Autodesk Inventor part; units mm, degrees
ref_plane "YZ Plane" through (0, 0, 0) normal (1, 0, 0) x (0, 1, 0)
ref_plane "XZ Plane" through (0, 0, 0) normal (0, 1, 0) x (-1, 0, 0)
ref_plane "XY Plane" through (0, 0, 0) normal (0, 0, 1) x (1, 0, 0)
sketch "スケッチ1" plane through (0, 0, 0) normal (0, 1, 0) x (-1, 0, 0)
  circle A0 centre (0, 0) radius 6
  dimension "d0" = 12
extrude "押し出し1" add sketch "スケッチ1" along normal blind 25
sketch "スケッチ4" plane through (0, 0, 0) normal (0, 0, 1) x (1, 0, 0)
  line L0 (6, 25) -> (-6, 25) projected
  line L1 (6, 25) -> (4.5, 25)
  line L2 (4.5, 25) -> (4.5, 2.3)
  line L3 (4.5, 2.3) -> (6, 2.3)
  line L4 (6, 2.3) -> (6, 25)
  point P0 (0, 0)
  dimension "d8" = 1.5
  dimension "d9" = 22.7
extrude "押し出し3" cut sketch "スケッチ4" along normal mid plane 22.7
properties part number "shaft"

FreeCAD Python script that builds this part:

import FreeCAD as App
import Part
import Sketcher

doc = App.newDocument("Part")
params = doc.addObject("Spreadsheet::Sheet", "Params")
for row, (alias, value) in enumerate([
    ("sketch1_diameter", "12 mm"),
    ("pad1_length", "25 mm"),
    ("sketch2_width", "1.5 mm"),
    ("sketch2_height", "22.7 mm"),
    ("pocket1_length", "22.7 mm"),
], start=1):
    params.set(f"A{row}", alias)
    params.set(f"B{row}", "=" + value)
    params.setAlias(f"B{row}", alias)

body = doc.addObject("PartDesign::Body", "Body")

sketch1 = doc.addObject("Sketcher::SketchObject", "Sketch")
body.addObject(sketch1)
sketch1.AttachmentSupport = (doc.XZ_Plane, [""])
sketch1.MapMode = "FlatFace"
sketch1.addGeometry(Part.Circle(App.Vector(0, 0, 0), App.Vector(0, 0, 1), 6), False)
sketch1.addConstraint(Sketcher.Constraint("Coincident", 0, 3, -1, 1))
sketch1.addConstraint(Sketcher.Constraint("Diameter", 0, 12.0))
sketch1.setExpression("Constraints[1]", "Params.sketch1_diameter")
pad1 = doc.addObject("PartDesign::Pad", "Pad")
body.addObject(pad1)
pad1.Profile = sketch1
pad1.setExpression("Length", "Params.pad1_length")
pad1.Reversed = True

sketch2 = doc.addObject("Sketcher::SketchObject", "Sketch001")
body.addObject(sketch2)
sketch2.AttachmentSupport = (doc.XY_Plane, [""])
sketch2.MapMode = "FlatFace"
sketch2.addGeometry(Part.LineSegment(App.Vector(6, 2.3, 0), App.Vector(6, 25, 0)), False)
sketch2.addGeometry(Part.LineSegment(App.Vector(6, 25, 0), App.Vector(4.5, 25, 0)), False)
sketch2.addGeometry(Part.LineSegment(App.Vector(4.5, 25, 0), App.Vector(4.5, 2.3, 0)), False)
sketch2.addGeometry(Part.LineSegment(App.Vector(4.5, 2.3, 0), App.Vector(6, 2.3, 0)), False)
sketch2.addConstraint(Sketcher.Constraint("Coincident", 0, 2, 1, 1))
sketch2.addConstraint(Sketcher.Constraint("Coincident", 1, 2, 2, 1))
sketch2.addConstraint(Sketcher.Constraint("Coincident", 2, 2, 3, 1))
sketch2.addConstraint(Sketcher.Constraint("Coincident", 3, 2, 0, 1))
sketch2.addConstraint(Sketcher.Constraint("Vertical", 0))
sketch2.addConstraint(Sketcher.Constraint("Horizontal", 1))
sketch2.addConstraint(Sketcher.Constraint("Vertical", 2))
sketch2.addConstraint(Sketcher.Constraint("Horizontal", 3))
sketch2.addConstraint(Sketcher.Constraint("DistanceX", 1, 2, 1, 1, 1.5))
sketch2.addConstraint(Sketcher.Constraint("DistanceY", 0, 1, 0, 2, 22.7))
sketch2.addConstraint(Sketcher.Constraint("DistanceX", -1, 1, 0, 2, 6.0))
sketch2.addConstraint(Sketcher.Constraint("DistanceY", -1, 1, 0, 2, 25.0))
sketch2.setExpression("Constraints[8]", "Params.sketch2_width")
sketch2.setExpression("Constraints[9]", "Params.sketch2_height")
pocket1 = doc.addObject("PartDesign::Pocket", "Pocket")
body.addObject(pocket1)
pocket1.Profile = sketch2
pocket1.setExpression("Length", "Params.pocket1_length")
pocket1.Midplane = True

doc.recompute()
